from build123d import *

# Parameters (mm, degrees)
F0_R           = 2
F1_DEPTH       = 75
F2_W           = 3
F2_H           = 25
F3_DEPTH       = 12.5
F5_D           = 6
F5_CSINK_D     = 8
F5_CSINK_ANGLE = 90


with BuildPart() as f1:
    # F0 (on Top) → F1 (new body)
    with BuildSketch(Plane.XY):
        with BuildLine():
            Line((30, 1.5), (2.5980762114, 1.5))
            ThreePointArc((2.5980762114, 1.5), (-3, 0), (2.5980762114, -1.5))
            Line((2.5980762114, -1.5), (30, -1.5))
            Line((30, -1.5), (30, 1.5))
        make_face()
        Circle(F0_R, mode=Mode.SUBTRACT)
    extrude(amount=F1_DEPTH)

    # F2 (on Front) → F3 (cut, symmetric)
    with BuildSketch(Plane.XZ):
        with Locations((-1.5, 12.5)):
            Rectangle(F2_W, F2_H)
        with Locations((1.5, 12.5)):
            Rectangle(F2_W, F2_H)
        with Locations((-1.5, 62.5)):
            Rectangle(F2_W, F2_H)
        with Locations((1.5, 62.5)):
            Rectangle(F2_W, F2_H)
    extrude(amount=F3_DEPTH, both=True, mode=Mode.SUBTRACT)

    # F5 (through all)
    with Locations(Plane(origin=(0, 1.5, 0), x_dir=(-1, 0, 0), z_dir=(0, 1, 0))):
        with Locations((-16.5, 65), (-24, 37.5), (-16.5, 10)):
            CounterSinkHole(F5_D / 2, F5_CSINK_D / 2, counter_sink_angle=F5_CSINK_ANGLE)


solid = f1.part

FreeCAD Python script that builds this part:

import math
import FreeCAD as App
import Part
import Sketcher
from FreeCAD import Vector

doc = App.newDocument("Part")
body = doc.addObject("PartDesign::Body", "Body")

# Sketch on XY plane
sketch1 = doc.addObject("Sketcher::SketchObject", "Sketch")
body.addObject(sketch1)
sketch1.AttachmentSupport = (doc.XY_Plane, [""])
sketch1.MapMode = "FlatFace"
sketch1.addGeometry(Part.LineSegment(Vector(30, 1.5, 0), Vector(2.6, 1.5, 0)), False)
sketch1.addGeometry(Part.ArcOfCircle(Part.Circle(Vector(0, 0, 0), Vector(0, 0, 1), 3), math.radians(30), math.radians(330)), False)
sketch1.addGeometry(Part.LineSegment(Vector(2.6, -1.5, 0), Vector(30, -1.5, 0)), False)
sketch1.addGeometry(Part.LineSegment(Vector(30, -1.5, 0), Vector(30, 1.5, 0)), False)
sketch1.addGeometry(Part.Circle(Vector(0, 0, 0), Vector(0, 0, 1), 2), False)
sketch1.addConstraint(Sketcher.Constraint("Coincident", 0, 2, 1, 1))
sketch1.addConstraint(Sketcher.Constraint("Coincident", 1, 2, 2, 1))
sketch1.addConstraint(Sketcher.Constraint("Coincident", 2, 2, 3, 1))
sketch1.addConstraint(Sketcher.Constraint("Coincident", 3, 2, 0, 1))
sketch1.addConstraint(Sketcher.Constraint("Horizontal", 0))
sketch1.addConstraint(Sketcher.Constraint("Horizontal", 2))
sketch1.addConstraint(Sketcher.Constraint("Vertical", 3))
sketch1.addConstraint(Sketcher.Constraint("Coincident", 1, 3, -1, 1))
sketch1.addConstraint(Sketcher.Constraint("Coincident", 4, 3, -1, 1))
sketch1.addConstraint(Sketcher.Constraint("Vertical", 0, 2, 1, 2))
sketch1.addConstraint(Sketcher.Constraint("Diameter", 4, 4.0))
sketch1.addConstraint(Sketcher.Constraint("Radius", 1, 3.0))
sketch1.addConstraint(Sketcher.Constraint("DistanceY", 3, 1, 3, 2, 3.0))
sketch1.addConstraint(Sketcher.Constraint("DistanceX", -1, 1, 2, 2, 30.0))
pad1 = doc.addObject("PartDesign::Pad", "Pad")
body.addObject(pad1)
pad1.Profile = sketch1
pad1.Length = 75

# Sketch on XZ plane
sketch2 = doc.addObject("Sketcher::SketchObject", "Sketch001")
body.addObject(sketch2)
sketch2.AttachmentSupport = (doc.XZ_Plane, [""])
sketch2.MapMode = "FlatFace"
sketch2.addGeometry(Part.LineSegment(Vector(-3, 25, 0), Vector(-3, 0, 0)), False)
sketch2.addGeometry(Part.LineSegment(Vector(-3, 0, 0), Vector(3, 0, 0)), False)
sketch2.addGeometry(Part.LineSegment(Vector(3, 0, 0), Vector(3, 25, 0)), False)
sketch2.addGeometry(Part.LineSegment(Vector(3, 25, 0), Vector(-3, 25, 0)), False)
sketch2.addGeometry(Part.LineSegment(Vector(-3, 75, 0), Vector(-3, 50, 0)), False)
sketch2.addGeometry(Part.LineSegment(Vector(-3, 50, 0), Vector(3, 50, 0)), False)
sketch2.addGeometry(Part.LineSegment(Vector(3, 50, 0), Vector(3, 75, 0)), False)
sketch2.addGeometry(Part.LineSegment(Vector(3, 75, 0), Vector(-3, 75, 0)), False)
sketch2.addConstraint(Sketcher.Constraint("Coincident", 0, 2, 1, 1))
sketch2.addConstraint(Sketcher.Constraint("Coincident", 1, 2, 2, 1))
sketch2.addConstraint(Sketcher.Constraint("Coincident", 2, 2, 3, 1))
sketch2.addConstraint(Sketcher.Constraint("Coincident", 3, 2, 0, 1))
sketch2.addConstraint(Sketcher.Constraint("Coincident", 4, 2, 5, 1))
sketch2.addConstraint(Sketcher.Constraint("Coincident", 5, 2, 6, 1))
sketch2.addConstraint(Sketcher.Constraint("Coincident", 6, 2, 7, 1))
sketch2.addConstraint(Sketcher.Constraint("Coincident", 7, 2, 4, 1))
sketch2.addConstraint(Sketcher.Constraint("Vertical", 0))
sketch2.addConstraint(Sketcher.Constraint("Horizontal", 1))
sketch2.addConstraint(Sketcher.Constraint("Vertical", 2))
sketch2.addConstraint(Sketcher.Constraint("Horizontal", 3))
sketch2.addConstraint(Sketcher.Constraint("Vertical", 4))
sketch2.addConstraint(Sketcher.Constraint("Horizontal", 5))
sketch2.addConstraint(Sketcher.Constraint("Vertical", 6))
sketch2.addConstraint(Sketcher.Constraint("Horizontal", 7))
sketch2.addConstraint(Sketcher.Constraint("Symmetric", 0, 2, 1, 2, -1, 1))
sketch2.addConstraint(Sketcher.Constraint("Vertical", 3, 2, 4, 2))
sketch2.addConstraint(Sketcher.Constraint("Vertical", 2, 2, 5, 2))
sketch2.addConstraint(Sketcher.Constraint("Equal", 2, 4))
sketch2.addConstraint(Sketcher.Constraint("DistanceX", 1, 1, 1, 2, 6.0))
sketch2.addConstraint(Sketcher.Constraint("DistanceY", 0, 2, 0, 1, 25.0))
sketch2.addConstraint(Sketcher.Constraint("DistanceY", -1, 1, 4, 2, 50.0))
pocket1 = doc.addObject("PartDesign::Pocket", "Pocket")
body.addObject(pocket1)
pocket1.Profile = sketch2
pocket1.Length = 25
pocket1.Midplane = True

# Sketch on XZ plane
sketch3 = doc.addObject("Sketcher::SketchObject", "Sketch002")
body.addObject(sketch3)
sketch3.AttachmentSupport = (doc.XZ_Plane, [""])
sketch3.MapMode = "FlatFace"
sketch3.AttachmentOffset = App.Placement(Vector(0, 0, -1.5), App.Rotation())
sketch3.addGeometry(Part.Circle(Vector(16.5, 65, 0), Vector(0, 0, 1), 3), False)
sketch3.addGeometry(Part.Circle(Vector(24, 37.5, 0), Vector(0, 0, 1), 3), False)
sketch3.addGeometry(Part.Circle(Vector(16.5, 10, 0), Vector(0, 0, 1), 3), False)
sketch3.addConstraint(Sketcher.Constraint("Equal", 0, 1))
sketch3.addConstraint(Sketcher.Constraint("Equal", 1, 2))
sketch3.addConstraint(Sketcher.Constraint("Vertical", 0, 3, 2, 3))
sketch3.addConstraint(Sketcher.Constraint("Diameter", 0, 6.0))
sketch3.addConstraint(Sketcher.Constraint("DistanceY", -1, 1, 0, 3, 65.0))
sketch3.addConstraint(Sketcher.Constraint("DistanceX", -1, 1, 1, 3, 24.0))
sketch3.addConstraint(Sketcher.Constraint("DistanceY", -1, 1, 2, 3, 10.0))
sketch3.addConstraint(Sketcher.Constraint("DistanceX", -1, 1, 0, 3, 16.5))
sketch3.addConstraint(Sketcher.Constraint("DistanceY", -1, 1, 1, 3, 37.5))
doc.recompute()
hole = doc.addObject("PartDesign::Hole", "Hole")
body.addObject(hole)
hole.Profile = sketch3
hole.ThreadType = "None"
hole.Diameter = 6
hole.DepthType = "ThroughAll"
hole.HoleCutType = "Countersink"
hole.HoleCutDiameter = 8
hole.HoleCutCountersinkAngle = 90
hole.Reversed = True

doc.recompute()
